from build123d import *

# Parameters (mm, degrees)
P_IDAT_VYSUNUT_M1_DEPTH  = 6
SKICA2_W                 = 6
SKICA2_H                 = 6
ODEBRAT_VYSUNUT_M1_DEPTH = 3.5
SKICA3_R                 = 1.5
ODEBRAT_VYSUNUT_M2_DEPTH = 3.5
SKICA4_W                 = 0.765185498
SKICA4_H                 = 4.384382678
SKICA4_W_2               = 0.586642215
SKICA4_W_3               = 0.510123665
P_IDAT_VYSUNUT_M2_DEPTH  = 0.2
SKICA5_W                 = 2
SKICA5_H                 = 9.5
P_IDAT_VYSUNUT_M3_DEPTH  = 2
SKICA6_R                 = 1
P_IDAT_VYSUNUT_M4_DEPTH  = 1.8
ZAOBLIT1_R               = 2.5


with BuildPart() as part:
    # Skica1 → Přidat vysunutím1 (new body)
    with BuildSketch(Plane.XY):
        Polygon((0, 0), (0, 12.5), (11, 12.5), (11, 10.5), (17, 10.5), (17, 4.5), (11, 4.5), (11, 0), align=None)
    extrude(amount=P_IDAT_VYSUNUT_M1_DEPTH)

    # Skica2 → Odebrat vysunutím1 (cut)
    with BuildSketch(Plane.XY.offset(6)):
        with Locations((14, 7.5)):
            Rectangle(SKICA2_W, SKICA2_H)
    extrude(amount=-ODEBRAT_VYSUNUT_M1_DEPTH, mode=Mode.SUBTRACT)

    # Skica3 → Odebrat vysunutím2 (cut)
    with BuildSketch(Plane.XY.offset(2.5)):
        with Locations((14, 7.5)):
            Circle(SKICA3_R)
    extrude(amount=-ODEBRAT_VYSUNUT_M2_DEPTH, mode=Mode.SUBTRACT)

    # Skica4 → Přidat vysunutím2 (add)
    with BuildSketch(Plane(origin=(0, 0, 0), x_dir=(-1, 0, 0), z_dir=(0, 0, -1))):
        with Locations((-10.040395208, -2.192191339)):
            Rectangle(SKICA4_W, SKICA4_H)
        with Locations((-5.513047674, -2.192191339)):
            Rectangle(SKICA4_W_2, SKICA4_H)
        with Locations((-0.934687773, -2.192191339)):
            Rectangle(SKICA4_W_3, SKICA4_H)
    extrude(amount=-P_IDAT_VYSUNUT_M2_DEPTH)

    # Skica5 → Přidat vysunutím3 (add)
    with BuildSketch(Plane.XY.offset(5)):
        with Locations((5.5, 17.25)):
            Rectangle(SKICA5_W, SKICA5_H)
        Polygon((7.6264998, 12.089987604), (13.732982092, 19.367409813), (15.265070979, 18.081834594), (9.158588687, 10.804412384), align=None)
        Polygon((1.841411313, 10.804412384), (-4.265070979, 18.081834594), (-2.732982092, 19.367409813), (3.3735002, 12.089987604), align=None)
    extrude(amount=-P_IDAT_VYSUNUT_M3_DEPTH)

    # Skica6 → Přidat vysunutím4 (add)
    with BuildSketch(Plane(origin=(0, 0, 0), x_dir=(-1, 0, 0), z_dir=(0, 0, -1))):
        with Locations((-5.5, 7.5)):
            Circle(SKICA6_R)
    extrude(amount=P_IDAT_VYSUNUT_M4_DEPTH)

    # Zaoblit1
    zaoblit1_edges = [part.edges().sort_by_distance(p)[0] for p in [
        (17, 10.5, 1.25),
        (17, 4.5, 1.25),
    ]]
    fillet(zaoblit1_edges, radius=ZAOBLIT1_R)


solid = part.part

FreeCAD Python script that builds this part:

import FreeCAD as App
import Part
import Sketcher

V = App.Vector
Q = App.Units.Quantity


def edges_at(feature, points):
    """Names of the edges that pass closest to the given points."""
    edges = feature.Shape.Edges
    near = lambda p: min(range(len(edges)), key=lambda i: edges[i].distToShape(Part.Vertex(*p))[0])
    return sorted({f"Edge{near(p) + 1}" for p in points})

doc = App.newDocument("Part")
body = doc.addObject("PartDesign::Body", "Body")

# Sketch on XY plane
sketch1 = body.newObject("Sketcher::SketchObject", "Sketch")
sketch1.AttachmentSupport = (doc.getObject("XY_Plane"), [""])
sketch1.MapMode = "FlatFace"
sketch1.addGeometry([
    Part.LineSegment(V(0, 12.5, 0), V(0, 0, 0)),  # 0
    Part.LineSegment(V(0, 0, 0), V(11, 0, 0)),  # 1
    Part.LineSegment(V(11, 0, 0), V(11, 4.5, 0)),  # 2
    Part.LineSegment(V(11, 4.5, 0), V(17, 4.5, 0)),  # 3
    Part.LineSegment(V(17, 4.5, 0), V(17, 10.5, 0)),  # 4
    Part.LineSegment(V(17, 10.5, 0), V(11, 10.5, 0)),  # 5
    Part.LineSegment(V(11, 10.5, 0), V(11, 12.5, 0)),  # 6
    Part.LineSegment(V(11, 12.5, 0), V(0, 12.5, 0)),  # 7
], False)
sketch1.addConstraint([
    Sketcher.Constraint("Coincident", 0, 2, 1, 1),
    Sketcher.Constraint("Coincident", 1, 2, 2, 1),
    Sketcher.Constraint("Coincident", 2, 2, 3, 1),
    Sketcher.Constraint("Coincident", 3, 2, 4, 1),
    Sketcher.Constraint("Coincident", 4, 2, 5, 1),
    Sketcher.Constraint("Coincident", 5, 2, 6, 1),
    Sketcher.Constraint("Coincident", 6, 2, 7, 1),
    Sketcher.Constraint("Coincident", 7, 2, 0, 1),
    Sketcher.Constraint("Vertical", 0),
    Sketcher.Constraint("Horizontal", 1),
    Sketcher.Constraint("Vertical", 2),
    Sketcher.Constraint("Horizontal", 3),
    Sketcher.Constraint("Vertical", 4),
    Sketcher.Constraint("Horizontal", 5),
    Sketcher.Constraint("Vertical", 6),
    Sketcher.Constraint("Horizontal", 7),
    Sketcher.Constraint("Coincident", 0, 2, -1, 1),
    Sketcher.Constraint("Vertical", 2, 2, 5, 2),
    Sketcher.Constraint("Equal", 5, 4),
    Sketcher.Constraint("DistanceX", 1, 1, 1, 2, 11.0),
    Sketcher.Constraint("DistanceX", 3, 1, 3, 2, 6.0),
    Sketcher.Constraint("DistanceY", 6, 1, 6, 2, 2.0),
    Sketcher.Constraint("DistanceY", 0, 2, 0, 1, 12.5),
])
pad1 = body.newObject("PartDesign::Pad", "Pad")
pad1.Profile = sketch1
pad1.Length = 6

# Sketch on XY plane
sketch2 = body.newObject("Sketcher::SketchObject", "Sketch001")
sketch2.AttachmentSupport = (doc.getObject("XY_Plane"), [""])
sketch2.MapMode = "FlatFace"
sketch2.AttachmentOffset = App.Placement(V(0, 0, 6), App.Rotation())
sketch2.addGeometry([
    Part.LineSegment(V(11, 10.5, 0), V(11, 4.5, 0)),
    Part.LineSegment(V(11, 4.5, 0), V(17, 4.5, 0)),
    Part.LineSegment(V(17, 4.5, 0), V(17, 10.5, 0)),
    Part.LineSegment(V(17, 10.5, 0), V(11, 10.5, 0)),
], False)
sketch2.addConstraint([
    Sketcher.Constraint("Coincident", 0, 2, 1, 1),
    Sketcher.Constraint("Coincident", 1, 2, 2, 1),
    Sketcher.Constraint("Coincident", 2, 2, 3, 1),
    Sketcher.Constraint("Coincident", 3, 2, 0, 1),
    Sketcher.Constraint("Vertical", 0),
    Sketcher.Constraint("Horizontal", 1),
    Sketcher.Constraint("Vertical", 2),
    Sketcher.Constraint("Horizontal", 3),
    Sketcher.Constraint("Equal", 3, 0),
    Sketcher.Constraint("DistanceX", 1, 1, 1, 2, 6.0),
    Sketcher.Constraint("DistanceX", -1, 1, 0, 2, 11.0),
    Sketcher.Constraint("DistanceY", -1, 1, 0, 2, 4.5),
])
pocket1 = body.newObject("PartDesign::Pocket", "Pocket")
pocket1.Profile = sketch2
pocket1.Length = 3.5

# Sketch on XY plane
sketch3 = body.newObject("Sketcher::SketchObject", "Sketch002")
sketch3.AttachmentSupport = (doc.getObject("XY_Plane"), [""])
sketch3.MapMode = "FlatFace"
sketch3.AttachmentOffset = App.Placement(V(0, 0, 2.5), App.Rotation())
sketch3.addGeometry(Part.Circle(V(14, 7.5, 0), V(0, 0, 1), 1.5), False)
sketch3.addConstraint([
    Sketcher.Constraint("Diameter", 0, 3.0),
    Sketcher.Constraint("DistanceX", -1, 1, 0, 3, 14.0),
    Sketcher.Constraint("DistanceY", -1, 1, 0, 3, 7.5),
])
pocket2 = body.newObject("PartDesign::Pocket", "Pocket001")
pocket2.Profile = sketch3
pocket2.Length = 3.5

# Sketch on XY plane
sketch4 = body.newObject("Sketcher::SketchObject", "Sketch003")
sketch4.AttachmentSupport = (doc.getObject("XY_Plane"), [""])
sketch4.MapMode = "FlatFace"
sketch4.addGeometry([
    Part.LineSegment(V(10.422988, 0, 0), V(10.422988, -4.384383, 0)),  # 0
    Part.LineSegment(V(10.422988, -4.384383, 0), V(9.657802, -4.384383, 0)),  # 1
    Part.LineSegment(V(9.657802, -4.384383, 0), V(9.657802, 0, 0)),  # 2
    Part.LineSegment(V(9.657802, 0, 0), V(10.422988, 0, 0)),  # 3
    Part.LineSegment(V(5.806369, 0, 0), V(5.806369, -4.384383, 0)),  # 4
    Part.LineSegment(V(5.806369, -4.384383, 0), V(5.219727, -4.384383, 0)),  # 5
    Part.LineSegment(V(5.219727, -4.384383, 0), V(5.219727, 0, 0)),  # 6
    Part.LineSegment(V(5.219727, 0, 0), V(5.806369, 0, 0)),  # 7
    Part.LineSegment(V(1.18975, 0, 0), V(1.18975, -4.384383, 0)),  # 8
    Part.LineSegment(V(1.18975, -4.384383, 0), V(0.679626, -4.384383, 0)),  # 9
    Part.LineSegment(V(0.679626, -4.384383, 0), V(0.679626, 0, 0)),  # 10
    Part.LineSegment(V(0.679626, 0, 0), V(1.18975, 0, 0)),  # 11
], False)
sketch4.addConstraint([
    Sketcher.Constraint("Coincident", 0, 2, 1, 1),
    Sketcher.Constraint("Coincident", 1, 2, 2, 1),
    Sketcher.Constraint("Coincident", 2, 2, 3, 1),
    Sketcher.Constraint("Coincident", 3, 2, 0, 1),
    Sketcher.Constraint("Coincident", 4, 2, 5, 1),
    Sketcher.Constraint("Coincident", 5, 2, 6, 1),
    Sketcher.Constraint("Coincident", 6, 2, 7, 1),
    Sketcher.Constraint("Coincident", 7, 2, 4, 1),
    Sketcher.Constraint("Coincident", 8, 2, 9, 1),
    Sketcher.Constraint("Coincident", 9, 2, 10, 1),
    Sketcher.Constraint("Coincident", 10, 2, 11, 1),
    Sketcher.Constraint("Coincident", 11, 2, 8, 1),
    Sketcher.Constraint("Vertical", 0),
    Sketcher.Constraint("Horizontal", 1),
    Sketcher.Constraint("Vertical", 2),
    Sketcher.Constraint("Horizontal", 3),
    Sketcher.Constraint("Vertical", 4),
    Sketcher.Constraint("Horizontal", 5),
    Sketcher.Constraint("Vertical", 6),
    Sketcher.Constraint("Horizontal", 7),
    Sketcher.Constraint("Vertical", 8),
    Sketcher.Constraint("Horizontal", 9),
    Sketcher.Constraint("Vertical", 10),
    Sketcher.Constraint("Horizontal", 11),
    Sketcher.Constraint("PointOnObject", 2, 2, -1),
    Sketcher.Constraint("PointOnObject", 6, 2, -1),
    Sketcher.Constraint("PointOnObject", 10, 2, -1),
    Sketcher.Constraint("Horizontal", 1, 2, 4, 2),
    Sketcher.Constraint("Horizontal", 5, 2, 8, 2),
    Sketcher.Constraint("DistanceX", 9, 2, 5, 2, 4.540101),
    Sketcher.Constraint("DistanceX", 1, 2, 1, 1, 0.765185),
    Sketcher.Constraint("DistanceX", 5, 2, 5, 1, 0.586642),
    Sketcher.Constraint("DistanceX", 9, 2, 9, 1, 0.510124),
    Sketcher.Constraint("DistanceY", 0, 2, 0, 1, 4.384383),
    Sketcher.Constraint("DistanceX", -1, 1, 4, 2, 5.806369),
    Sketcher.Constraint("DistanceX", 4, 2, 0, 2, 4.616619),
])
pad2 = body.newObject("PartDesign::Pad", "Pad001")
pad2.Profile = sketch4
pad2.Length = 0.2

# Sketch on XY plane
sketch5 = body.newObject("Sketcher::SketchObject", "Sketch004")
sketch5.AttachmentSupport = (doc.getObject("XY_Plane"), [""])
sketch5.MapMode = "FlatFace"
sketch5.AttachmentOffset = App.Placement(V(0, 0, 5), App.Rotation())
sketch5.addGeometry([
    Part.LineSegment(V(4.5, 22, 0), V(4.5, 12.5, 0)),  # 0
    Part.LineSegment(V(4.5, 12.5, 0), V(6.5, 12.5, 0)),  # 1
    Part.LineSegment(V(6.5, 12.5, 0), V(6.5, 22, 0)),  # 2
    Part.LineSegment(V(6.5, 22, 0), V(4.5, 22, 0)),  # 3
    Part.LineSegment(V(13.732982, 19.36741, 0), V(7.6265, 12.089988, 0)),  # 4
    Part.LineSegment(V(7.6265, 12.089988, 0), V(9.158589, 10.804412, 0)),  # 5
    Part.LineSegment(V(9.158589, 10.804412, 0), V(15.265071, 18.081835, 0)),  # 6
    Part.LineSegment(V(15.265071, 18.081835, 0), V(13.732982, 19.36741, 0)),  # 7
    Part.LineSegment(V(-4.265071, 18.081835, 0), V(1.841411, 10.804412, 0)),  # 8
    Part.LineSegment(V(1.841411, 10.804412, 0), V(3.3735, 12.089988, 0)),  # 9
    Part.LineSegment(V(3.3735, 12.089988, 0), V(-2.732982, 19.36741, 0)),  # 10
    Part.LineSegment(V(-2.732982, 19.36741, 0), V(-4.265071, 18.081835, 0)),  # 11
], False)
sketch5.addConstraint([
    Sketcher.Constraint("Coincident", 0, 2, 1, 1),
    Sketcher.Constraint("Coincident", 1, 2, 2, 1),
    Sketcher.Constraint("Coincident", 2, 2, 3, 1),
    Sketcher.Constraint("Coincident", 3, 2, 0, 1),
    Sketcher.Constraint("Coincident", 4, 2, 5, 1),
    Sketcher.Constraint("Coincident", 5, 2, 6, 1),
    Sketcher.Constraint("Coincident", 6, 2, 7, 1),
    Sketcher.Constraint("Coincident", 7, 2, 4, 1),
    Sketcher.Constraint("Coincident", 8, 2, 9, 1),
    Sketcher.Constraint("Coincident", 9, 2, 10, 1),
    Sketcher.Constraint("Coincident", 10, 2, 11, 1),
    Sketcher.Constraint("Coincident", 11, 2, 8, 1),
    Sketcher.Constraint("Vertical", 0),
    Sketcher.Constraint("Horizontal", 1),
    Sketcher.Constraint("Vertical", 2),
    Sketcher.Constraint("Horizontal", 3),
    Sketcher.Constraint("Perpendicular", 4, 5),
    Sketcher.Constraint("Perpendicular", 5, 6),
    Sketcher.Constraint("Perpendicular", 6, 7),
    Sketcher.Constraint("Perpendicular", 8, 9),
    Sketcher.Constraint("Perpendicular", 9, 10),
    Sketcher.Constraint("Perpendicular", 10, 11),
    Sketcher.Constraint("Horizontal", 5, 2, 8, 2),
    Sketcher.Constraint("Horizontal", 4, 2, 9, 2),
    Sketcher.Constraint("Horizontal", 7, 2, 10, 2),
    Sketcher.Constraint("Equal", 6, 8),
    Sketcher.Constraint("DistanceX", 1, 1, 1, 2, 2.0),
    Sketcher.Constraint("Angle", 4, Q("-130 deg")),
    Sketcher.Constraint("Distance", 5, 2.0),
    Sketcher.Constraint("DistanceY", 0, 2, 0, 1, 9.5),
    Sketcher.Constraint("DistanceY", -1, 1, 2, 2, 22.0),
    Sketcher.Constraint("Distance", 4, 9.5),
    Sketcher.Constraint("DistanceX", -1, 1, 0, 2, 4.5),
    Sketcher.Constraint("DistanceX", 9, 2, 4, 2, 4.253),
    Sketcher.Constraint("DistanceX", -1, 1, 4, 2, 7.6265),
    Sketcher.Constraint("DistanceY", -1, 1, 7, 2, 19.36741),
])
pad3 = body.newObject("PartDesign::Pad", "Pad002")
pad3.Profile = sketch5
pad3.Length = 2
pad3.Reversed = True

# Sketch on XY plane
sketch6 = body.newObject("Sketcher::SketchObject", "Sketch005")
sketch6.AttachmentSupport = (doc.getObject("XY_Plane"), [""])
sketch6.MapMode = "FlatFace"
sketch6.addGeometry(Part.Circle(V(5.5, 7.5, 0), V(0, 0, 1), 1), False)
sketch6.addConstraint([
    Sketcher.Constraint("Diameter", 0, 2.0),
    Sketcher.Constraint("DistanceX", -1, 1, 0, 3, 5.5),
    Sketcher.Constraint("DistanceY", -1, 1, 0, 3, 7.5),
])
pad4 = body.newObject("PartDesign::Pad", "Pad003")
pad4.Profile = sketch6
pad4.Length = 1.8
pad4.Reversed = True
doc.recompute()

fillet = body.newObject("PartDesign::Fillet", "Fillet")
fillet.Base = (pad4, edges_at(pad4, [(17, 10.5, 1.25), (17, 4.5, 1.25)]))
fillet.Radius = 2.5

doc.recompute()
